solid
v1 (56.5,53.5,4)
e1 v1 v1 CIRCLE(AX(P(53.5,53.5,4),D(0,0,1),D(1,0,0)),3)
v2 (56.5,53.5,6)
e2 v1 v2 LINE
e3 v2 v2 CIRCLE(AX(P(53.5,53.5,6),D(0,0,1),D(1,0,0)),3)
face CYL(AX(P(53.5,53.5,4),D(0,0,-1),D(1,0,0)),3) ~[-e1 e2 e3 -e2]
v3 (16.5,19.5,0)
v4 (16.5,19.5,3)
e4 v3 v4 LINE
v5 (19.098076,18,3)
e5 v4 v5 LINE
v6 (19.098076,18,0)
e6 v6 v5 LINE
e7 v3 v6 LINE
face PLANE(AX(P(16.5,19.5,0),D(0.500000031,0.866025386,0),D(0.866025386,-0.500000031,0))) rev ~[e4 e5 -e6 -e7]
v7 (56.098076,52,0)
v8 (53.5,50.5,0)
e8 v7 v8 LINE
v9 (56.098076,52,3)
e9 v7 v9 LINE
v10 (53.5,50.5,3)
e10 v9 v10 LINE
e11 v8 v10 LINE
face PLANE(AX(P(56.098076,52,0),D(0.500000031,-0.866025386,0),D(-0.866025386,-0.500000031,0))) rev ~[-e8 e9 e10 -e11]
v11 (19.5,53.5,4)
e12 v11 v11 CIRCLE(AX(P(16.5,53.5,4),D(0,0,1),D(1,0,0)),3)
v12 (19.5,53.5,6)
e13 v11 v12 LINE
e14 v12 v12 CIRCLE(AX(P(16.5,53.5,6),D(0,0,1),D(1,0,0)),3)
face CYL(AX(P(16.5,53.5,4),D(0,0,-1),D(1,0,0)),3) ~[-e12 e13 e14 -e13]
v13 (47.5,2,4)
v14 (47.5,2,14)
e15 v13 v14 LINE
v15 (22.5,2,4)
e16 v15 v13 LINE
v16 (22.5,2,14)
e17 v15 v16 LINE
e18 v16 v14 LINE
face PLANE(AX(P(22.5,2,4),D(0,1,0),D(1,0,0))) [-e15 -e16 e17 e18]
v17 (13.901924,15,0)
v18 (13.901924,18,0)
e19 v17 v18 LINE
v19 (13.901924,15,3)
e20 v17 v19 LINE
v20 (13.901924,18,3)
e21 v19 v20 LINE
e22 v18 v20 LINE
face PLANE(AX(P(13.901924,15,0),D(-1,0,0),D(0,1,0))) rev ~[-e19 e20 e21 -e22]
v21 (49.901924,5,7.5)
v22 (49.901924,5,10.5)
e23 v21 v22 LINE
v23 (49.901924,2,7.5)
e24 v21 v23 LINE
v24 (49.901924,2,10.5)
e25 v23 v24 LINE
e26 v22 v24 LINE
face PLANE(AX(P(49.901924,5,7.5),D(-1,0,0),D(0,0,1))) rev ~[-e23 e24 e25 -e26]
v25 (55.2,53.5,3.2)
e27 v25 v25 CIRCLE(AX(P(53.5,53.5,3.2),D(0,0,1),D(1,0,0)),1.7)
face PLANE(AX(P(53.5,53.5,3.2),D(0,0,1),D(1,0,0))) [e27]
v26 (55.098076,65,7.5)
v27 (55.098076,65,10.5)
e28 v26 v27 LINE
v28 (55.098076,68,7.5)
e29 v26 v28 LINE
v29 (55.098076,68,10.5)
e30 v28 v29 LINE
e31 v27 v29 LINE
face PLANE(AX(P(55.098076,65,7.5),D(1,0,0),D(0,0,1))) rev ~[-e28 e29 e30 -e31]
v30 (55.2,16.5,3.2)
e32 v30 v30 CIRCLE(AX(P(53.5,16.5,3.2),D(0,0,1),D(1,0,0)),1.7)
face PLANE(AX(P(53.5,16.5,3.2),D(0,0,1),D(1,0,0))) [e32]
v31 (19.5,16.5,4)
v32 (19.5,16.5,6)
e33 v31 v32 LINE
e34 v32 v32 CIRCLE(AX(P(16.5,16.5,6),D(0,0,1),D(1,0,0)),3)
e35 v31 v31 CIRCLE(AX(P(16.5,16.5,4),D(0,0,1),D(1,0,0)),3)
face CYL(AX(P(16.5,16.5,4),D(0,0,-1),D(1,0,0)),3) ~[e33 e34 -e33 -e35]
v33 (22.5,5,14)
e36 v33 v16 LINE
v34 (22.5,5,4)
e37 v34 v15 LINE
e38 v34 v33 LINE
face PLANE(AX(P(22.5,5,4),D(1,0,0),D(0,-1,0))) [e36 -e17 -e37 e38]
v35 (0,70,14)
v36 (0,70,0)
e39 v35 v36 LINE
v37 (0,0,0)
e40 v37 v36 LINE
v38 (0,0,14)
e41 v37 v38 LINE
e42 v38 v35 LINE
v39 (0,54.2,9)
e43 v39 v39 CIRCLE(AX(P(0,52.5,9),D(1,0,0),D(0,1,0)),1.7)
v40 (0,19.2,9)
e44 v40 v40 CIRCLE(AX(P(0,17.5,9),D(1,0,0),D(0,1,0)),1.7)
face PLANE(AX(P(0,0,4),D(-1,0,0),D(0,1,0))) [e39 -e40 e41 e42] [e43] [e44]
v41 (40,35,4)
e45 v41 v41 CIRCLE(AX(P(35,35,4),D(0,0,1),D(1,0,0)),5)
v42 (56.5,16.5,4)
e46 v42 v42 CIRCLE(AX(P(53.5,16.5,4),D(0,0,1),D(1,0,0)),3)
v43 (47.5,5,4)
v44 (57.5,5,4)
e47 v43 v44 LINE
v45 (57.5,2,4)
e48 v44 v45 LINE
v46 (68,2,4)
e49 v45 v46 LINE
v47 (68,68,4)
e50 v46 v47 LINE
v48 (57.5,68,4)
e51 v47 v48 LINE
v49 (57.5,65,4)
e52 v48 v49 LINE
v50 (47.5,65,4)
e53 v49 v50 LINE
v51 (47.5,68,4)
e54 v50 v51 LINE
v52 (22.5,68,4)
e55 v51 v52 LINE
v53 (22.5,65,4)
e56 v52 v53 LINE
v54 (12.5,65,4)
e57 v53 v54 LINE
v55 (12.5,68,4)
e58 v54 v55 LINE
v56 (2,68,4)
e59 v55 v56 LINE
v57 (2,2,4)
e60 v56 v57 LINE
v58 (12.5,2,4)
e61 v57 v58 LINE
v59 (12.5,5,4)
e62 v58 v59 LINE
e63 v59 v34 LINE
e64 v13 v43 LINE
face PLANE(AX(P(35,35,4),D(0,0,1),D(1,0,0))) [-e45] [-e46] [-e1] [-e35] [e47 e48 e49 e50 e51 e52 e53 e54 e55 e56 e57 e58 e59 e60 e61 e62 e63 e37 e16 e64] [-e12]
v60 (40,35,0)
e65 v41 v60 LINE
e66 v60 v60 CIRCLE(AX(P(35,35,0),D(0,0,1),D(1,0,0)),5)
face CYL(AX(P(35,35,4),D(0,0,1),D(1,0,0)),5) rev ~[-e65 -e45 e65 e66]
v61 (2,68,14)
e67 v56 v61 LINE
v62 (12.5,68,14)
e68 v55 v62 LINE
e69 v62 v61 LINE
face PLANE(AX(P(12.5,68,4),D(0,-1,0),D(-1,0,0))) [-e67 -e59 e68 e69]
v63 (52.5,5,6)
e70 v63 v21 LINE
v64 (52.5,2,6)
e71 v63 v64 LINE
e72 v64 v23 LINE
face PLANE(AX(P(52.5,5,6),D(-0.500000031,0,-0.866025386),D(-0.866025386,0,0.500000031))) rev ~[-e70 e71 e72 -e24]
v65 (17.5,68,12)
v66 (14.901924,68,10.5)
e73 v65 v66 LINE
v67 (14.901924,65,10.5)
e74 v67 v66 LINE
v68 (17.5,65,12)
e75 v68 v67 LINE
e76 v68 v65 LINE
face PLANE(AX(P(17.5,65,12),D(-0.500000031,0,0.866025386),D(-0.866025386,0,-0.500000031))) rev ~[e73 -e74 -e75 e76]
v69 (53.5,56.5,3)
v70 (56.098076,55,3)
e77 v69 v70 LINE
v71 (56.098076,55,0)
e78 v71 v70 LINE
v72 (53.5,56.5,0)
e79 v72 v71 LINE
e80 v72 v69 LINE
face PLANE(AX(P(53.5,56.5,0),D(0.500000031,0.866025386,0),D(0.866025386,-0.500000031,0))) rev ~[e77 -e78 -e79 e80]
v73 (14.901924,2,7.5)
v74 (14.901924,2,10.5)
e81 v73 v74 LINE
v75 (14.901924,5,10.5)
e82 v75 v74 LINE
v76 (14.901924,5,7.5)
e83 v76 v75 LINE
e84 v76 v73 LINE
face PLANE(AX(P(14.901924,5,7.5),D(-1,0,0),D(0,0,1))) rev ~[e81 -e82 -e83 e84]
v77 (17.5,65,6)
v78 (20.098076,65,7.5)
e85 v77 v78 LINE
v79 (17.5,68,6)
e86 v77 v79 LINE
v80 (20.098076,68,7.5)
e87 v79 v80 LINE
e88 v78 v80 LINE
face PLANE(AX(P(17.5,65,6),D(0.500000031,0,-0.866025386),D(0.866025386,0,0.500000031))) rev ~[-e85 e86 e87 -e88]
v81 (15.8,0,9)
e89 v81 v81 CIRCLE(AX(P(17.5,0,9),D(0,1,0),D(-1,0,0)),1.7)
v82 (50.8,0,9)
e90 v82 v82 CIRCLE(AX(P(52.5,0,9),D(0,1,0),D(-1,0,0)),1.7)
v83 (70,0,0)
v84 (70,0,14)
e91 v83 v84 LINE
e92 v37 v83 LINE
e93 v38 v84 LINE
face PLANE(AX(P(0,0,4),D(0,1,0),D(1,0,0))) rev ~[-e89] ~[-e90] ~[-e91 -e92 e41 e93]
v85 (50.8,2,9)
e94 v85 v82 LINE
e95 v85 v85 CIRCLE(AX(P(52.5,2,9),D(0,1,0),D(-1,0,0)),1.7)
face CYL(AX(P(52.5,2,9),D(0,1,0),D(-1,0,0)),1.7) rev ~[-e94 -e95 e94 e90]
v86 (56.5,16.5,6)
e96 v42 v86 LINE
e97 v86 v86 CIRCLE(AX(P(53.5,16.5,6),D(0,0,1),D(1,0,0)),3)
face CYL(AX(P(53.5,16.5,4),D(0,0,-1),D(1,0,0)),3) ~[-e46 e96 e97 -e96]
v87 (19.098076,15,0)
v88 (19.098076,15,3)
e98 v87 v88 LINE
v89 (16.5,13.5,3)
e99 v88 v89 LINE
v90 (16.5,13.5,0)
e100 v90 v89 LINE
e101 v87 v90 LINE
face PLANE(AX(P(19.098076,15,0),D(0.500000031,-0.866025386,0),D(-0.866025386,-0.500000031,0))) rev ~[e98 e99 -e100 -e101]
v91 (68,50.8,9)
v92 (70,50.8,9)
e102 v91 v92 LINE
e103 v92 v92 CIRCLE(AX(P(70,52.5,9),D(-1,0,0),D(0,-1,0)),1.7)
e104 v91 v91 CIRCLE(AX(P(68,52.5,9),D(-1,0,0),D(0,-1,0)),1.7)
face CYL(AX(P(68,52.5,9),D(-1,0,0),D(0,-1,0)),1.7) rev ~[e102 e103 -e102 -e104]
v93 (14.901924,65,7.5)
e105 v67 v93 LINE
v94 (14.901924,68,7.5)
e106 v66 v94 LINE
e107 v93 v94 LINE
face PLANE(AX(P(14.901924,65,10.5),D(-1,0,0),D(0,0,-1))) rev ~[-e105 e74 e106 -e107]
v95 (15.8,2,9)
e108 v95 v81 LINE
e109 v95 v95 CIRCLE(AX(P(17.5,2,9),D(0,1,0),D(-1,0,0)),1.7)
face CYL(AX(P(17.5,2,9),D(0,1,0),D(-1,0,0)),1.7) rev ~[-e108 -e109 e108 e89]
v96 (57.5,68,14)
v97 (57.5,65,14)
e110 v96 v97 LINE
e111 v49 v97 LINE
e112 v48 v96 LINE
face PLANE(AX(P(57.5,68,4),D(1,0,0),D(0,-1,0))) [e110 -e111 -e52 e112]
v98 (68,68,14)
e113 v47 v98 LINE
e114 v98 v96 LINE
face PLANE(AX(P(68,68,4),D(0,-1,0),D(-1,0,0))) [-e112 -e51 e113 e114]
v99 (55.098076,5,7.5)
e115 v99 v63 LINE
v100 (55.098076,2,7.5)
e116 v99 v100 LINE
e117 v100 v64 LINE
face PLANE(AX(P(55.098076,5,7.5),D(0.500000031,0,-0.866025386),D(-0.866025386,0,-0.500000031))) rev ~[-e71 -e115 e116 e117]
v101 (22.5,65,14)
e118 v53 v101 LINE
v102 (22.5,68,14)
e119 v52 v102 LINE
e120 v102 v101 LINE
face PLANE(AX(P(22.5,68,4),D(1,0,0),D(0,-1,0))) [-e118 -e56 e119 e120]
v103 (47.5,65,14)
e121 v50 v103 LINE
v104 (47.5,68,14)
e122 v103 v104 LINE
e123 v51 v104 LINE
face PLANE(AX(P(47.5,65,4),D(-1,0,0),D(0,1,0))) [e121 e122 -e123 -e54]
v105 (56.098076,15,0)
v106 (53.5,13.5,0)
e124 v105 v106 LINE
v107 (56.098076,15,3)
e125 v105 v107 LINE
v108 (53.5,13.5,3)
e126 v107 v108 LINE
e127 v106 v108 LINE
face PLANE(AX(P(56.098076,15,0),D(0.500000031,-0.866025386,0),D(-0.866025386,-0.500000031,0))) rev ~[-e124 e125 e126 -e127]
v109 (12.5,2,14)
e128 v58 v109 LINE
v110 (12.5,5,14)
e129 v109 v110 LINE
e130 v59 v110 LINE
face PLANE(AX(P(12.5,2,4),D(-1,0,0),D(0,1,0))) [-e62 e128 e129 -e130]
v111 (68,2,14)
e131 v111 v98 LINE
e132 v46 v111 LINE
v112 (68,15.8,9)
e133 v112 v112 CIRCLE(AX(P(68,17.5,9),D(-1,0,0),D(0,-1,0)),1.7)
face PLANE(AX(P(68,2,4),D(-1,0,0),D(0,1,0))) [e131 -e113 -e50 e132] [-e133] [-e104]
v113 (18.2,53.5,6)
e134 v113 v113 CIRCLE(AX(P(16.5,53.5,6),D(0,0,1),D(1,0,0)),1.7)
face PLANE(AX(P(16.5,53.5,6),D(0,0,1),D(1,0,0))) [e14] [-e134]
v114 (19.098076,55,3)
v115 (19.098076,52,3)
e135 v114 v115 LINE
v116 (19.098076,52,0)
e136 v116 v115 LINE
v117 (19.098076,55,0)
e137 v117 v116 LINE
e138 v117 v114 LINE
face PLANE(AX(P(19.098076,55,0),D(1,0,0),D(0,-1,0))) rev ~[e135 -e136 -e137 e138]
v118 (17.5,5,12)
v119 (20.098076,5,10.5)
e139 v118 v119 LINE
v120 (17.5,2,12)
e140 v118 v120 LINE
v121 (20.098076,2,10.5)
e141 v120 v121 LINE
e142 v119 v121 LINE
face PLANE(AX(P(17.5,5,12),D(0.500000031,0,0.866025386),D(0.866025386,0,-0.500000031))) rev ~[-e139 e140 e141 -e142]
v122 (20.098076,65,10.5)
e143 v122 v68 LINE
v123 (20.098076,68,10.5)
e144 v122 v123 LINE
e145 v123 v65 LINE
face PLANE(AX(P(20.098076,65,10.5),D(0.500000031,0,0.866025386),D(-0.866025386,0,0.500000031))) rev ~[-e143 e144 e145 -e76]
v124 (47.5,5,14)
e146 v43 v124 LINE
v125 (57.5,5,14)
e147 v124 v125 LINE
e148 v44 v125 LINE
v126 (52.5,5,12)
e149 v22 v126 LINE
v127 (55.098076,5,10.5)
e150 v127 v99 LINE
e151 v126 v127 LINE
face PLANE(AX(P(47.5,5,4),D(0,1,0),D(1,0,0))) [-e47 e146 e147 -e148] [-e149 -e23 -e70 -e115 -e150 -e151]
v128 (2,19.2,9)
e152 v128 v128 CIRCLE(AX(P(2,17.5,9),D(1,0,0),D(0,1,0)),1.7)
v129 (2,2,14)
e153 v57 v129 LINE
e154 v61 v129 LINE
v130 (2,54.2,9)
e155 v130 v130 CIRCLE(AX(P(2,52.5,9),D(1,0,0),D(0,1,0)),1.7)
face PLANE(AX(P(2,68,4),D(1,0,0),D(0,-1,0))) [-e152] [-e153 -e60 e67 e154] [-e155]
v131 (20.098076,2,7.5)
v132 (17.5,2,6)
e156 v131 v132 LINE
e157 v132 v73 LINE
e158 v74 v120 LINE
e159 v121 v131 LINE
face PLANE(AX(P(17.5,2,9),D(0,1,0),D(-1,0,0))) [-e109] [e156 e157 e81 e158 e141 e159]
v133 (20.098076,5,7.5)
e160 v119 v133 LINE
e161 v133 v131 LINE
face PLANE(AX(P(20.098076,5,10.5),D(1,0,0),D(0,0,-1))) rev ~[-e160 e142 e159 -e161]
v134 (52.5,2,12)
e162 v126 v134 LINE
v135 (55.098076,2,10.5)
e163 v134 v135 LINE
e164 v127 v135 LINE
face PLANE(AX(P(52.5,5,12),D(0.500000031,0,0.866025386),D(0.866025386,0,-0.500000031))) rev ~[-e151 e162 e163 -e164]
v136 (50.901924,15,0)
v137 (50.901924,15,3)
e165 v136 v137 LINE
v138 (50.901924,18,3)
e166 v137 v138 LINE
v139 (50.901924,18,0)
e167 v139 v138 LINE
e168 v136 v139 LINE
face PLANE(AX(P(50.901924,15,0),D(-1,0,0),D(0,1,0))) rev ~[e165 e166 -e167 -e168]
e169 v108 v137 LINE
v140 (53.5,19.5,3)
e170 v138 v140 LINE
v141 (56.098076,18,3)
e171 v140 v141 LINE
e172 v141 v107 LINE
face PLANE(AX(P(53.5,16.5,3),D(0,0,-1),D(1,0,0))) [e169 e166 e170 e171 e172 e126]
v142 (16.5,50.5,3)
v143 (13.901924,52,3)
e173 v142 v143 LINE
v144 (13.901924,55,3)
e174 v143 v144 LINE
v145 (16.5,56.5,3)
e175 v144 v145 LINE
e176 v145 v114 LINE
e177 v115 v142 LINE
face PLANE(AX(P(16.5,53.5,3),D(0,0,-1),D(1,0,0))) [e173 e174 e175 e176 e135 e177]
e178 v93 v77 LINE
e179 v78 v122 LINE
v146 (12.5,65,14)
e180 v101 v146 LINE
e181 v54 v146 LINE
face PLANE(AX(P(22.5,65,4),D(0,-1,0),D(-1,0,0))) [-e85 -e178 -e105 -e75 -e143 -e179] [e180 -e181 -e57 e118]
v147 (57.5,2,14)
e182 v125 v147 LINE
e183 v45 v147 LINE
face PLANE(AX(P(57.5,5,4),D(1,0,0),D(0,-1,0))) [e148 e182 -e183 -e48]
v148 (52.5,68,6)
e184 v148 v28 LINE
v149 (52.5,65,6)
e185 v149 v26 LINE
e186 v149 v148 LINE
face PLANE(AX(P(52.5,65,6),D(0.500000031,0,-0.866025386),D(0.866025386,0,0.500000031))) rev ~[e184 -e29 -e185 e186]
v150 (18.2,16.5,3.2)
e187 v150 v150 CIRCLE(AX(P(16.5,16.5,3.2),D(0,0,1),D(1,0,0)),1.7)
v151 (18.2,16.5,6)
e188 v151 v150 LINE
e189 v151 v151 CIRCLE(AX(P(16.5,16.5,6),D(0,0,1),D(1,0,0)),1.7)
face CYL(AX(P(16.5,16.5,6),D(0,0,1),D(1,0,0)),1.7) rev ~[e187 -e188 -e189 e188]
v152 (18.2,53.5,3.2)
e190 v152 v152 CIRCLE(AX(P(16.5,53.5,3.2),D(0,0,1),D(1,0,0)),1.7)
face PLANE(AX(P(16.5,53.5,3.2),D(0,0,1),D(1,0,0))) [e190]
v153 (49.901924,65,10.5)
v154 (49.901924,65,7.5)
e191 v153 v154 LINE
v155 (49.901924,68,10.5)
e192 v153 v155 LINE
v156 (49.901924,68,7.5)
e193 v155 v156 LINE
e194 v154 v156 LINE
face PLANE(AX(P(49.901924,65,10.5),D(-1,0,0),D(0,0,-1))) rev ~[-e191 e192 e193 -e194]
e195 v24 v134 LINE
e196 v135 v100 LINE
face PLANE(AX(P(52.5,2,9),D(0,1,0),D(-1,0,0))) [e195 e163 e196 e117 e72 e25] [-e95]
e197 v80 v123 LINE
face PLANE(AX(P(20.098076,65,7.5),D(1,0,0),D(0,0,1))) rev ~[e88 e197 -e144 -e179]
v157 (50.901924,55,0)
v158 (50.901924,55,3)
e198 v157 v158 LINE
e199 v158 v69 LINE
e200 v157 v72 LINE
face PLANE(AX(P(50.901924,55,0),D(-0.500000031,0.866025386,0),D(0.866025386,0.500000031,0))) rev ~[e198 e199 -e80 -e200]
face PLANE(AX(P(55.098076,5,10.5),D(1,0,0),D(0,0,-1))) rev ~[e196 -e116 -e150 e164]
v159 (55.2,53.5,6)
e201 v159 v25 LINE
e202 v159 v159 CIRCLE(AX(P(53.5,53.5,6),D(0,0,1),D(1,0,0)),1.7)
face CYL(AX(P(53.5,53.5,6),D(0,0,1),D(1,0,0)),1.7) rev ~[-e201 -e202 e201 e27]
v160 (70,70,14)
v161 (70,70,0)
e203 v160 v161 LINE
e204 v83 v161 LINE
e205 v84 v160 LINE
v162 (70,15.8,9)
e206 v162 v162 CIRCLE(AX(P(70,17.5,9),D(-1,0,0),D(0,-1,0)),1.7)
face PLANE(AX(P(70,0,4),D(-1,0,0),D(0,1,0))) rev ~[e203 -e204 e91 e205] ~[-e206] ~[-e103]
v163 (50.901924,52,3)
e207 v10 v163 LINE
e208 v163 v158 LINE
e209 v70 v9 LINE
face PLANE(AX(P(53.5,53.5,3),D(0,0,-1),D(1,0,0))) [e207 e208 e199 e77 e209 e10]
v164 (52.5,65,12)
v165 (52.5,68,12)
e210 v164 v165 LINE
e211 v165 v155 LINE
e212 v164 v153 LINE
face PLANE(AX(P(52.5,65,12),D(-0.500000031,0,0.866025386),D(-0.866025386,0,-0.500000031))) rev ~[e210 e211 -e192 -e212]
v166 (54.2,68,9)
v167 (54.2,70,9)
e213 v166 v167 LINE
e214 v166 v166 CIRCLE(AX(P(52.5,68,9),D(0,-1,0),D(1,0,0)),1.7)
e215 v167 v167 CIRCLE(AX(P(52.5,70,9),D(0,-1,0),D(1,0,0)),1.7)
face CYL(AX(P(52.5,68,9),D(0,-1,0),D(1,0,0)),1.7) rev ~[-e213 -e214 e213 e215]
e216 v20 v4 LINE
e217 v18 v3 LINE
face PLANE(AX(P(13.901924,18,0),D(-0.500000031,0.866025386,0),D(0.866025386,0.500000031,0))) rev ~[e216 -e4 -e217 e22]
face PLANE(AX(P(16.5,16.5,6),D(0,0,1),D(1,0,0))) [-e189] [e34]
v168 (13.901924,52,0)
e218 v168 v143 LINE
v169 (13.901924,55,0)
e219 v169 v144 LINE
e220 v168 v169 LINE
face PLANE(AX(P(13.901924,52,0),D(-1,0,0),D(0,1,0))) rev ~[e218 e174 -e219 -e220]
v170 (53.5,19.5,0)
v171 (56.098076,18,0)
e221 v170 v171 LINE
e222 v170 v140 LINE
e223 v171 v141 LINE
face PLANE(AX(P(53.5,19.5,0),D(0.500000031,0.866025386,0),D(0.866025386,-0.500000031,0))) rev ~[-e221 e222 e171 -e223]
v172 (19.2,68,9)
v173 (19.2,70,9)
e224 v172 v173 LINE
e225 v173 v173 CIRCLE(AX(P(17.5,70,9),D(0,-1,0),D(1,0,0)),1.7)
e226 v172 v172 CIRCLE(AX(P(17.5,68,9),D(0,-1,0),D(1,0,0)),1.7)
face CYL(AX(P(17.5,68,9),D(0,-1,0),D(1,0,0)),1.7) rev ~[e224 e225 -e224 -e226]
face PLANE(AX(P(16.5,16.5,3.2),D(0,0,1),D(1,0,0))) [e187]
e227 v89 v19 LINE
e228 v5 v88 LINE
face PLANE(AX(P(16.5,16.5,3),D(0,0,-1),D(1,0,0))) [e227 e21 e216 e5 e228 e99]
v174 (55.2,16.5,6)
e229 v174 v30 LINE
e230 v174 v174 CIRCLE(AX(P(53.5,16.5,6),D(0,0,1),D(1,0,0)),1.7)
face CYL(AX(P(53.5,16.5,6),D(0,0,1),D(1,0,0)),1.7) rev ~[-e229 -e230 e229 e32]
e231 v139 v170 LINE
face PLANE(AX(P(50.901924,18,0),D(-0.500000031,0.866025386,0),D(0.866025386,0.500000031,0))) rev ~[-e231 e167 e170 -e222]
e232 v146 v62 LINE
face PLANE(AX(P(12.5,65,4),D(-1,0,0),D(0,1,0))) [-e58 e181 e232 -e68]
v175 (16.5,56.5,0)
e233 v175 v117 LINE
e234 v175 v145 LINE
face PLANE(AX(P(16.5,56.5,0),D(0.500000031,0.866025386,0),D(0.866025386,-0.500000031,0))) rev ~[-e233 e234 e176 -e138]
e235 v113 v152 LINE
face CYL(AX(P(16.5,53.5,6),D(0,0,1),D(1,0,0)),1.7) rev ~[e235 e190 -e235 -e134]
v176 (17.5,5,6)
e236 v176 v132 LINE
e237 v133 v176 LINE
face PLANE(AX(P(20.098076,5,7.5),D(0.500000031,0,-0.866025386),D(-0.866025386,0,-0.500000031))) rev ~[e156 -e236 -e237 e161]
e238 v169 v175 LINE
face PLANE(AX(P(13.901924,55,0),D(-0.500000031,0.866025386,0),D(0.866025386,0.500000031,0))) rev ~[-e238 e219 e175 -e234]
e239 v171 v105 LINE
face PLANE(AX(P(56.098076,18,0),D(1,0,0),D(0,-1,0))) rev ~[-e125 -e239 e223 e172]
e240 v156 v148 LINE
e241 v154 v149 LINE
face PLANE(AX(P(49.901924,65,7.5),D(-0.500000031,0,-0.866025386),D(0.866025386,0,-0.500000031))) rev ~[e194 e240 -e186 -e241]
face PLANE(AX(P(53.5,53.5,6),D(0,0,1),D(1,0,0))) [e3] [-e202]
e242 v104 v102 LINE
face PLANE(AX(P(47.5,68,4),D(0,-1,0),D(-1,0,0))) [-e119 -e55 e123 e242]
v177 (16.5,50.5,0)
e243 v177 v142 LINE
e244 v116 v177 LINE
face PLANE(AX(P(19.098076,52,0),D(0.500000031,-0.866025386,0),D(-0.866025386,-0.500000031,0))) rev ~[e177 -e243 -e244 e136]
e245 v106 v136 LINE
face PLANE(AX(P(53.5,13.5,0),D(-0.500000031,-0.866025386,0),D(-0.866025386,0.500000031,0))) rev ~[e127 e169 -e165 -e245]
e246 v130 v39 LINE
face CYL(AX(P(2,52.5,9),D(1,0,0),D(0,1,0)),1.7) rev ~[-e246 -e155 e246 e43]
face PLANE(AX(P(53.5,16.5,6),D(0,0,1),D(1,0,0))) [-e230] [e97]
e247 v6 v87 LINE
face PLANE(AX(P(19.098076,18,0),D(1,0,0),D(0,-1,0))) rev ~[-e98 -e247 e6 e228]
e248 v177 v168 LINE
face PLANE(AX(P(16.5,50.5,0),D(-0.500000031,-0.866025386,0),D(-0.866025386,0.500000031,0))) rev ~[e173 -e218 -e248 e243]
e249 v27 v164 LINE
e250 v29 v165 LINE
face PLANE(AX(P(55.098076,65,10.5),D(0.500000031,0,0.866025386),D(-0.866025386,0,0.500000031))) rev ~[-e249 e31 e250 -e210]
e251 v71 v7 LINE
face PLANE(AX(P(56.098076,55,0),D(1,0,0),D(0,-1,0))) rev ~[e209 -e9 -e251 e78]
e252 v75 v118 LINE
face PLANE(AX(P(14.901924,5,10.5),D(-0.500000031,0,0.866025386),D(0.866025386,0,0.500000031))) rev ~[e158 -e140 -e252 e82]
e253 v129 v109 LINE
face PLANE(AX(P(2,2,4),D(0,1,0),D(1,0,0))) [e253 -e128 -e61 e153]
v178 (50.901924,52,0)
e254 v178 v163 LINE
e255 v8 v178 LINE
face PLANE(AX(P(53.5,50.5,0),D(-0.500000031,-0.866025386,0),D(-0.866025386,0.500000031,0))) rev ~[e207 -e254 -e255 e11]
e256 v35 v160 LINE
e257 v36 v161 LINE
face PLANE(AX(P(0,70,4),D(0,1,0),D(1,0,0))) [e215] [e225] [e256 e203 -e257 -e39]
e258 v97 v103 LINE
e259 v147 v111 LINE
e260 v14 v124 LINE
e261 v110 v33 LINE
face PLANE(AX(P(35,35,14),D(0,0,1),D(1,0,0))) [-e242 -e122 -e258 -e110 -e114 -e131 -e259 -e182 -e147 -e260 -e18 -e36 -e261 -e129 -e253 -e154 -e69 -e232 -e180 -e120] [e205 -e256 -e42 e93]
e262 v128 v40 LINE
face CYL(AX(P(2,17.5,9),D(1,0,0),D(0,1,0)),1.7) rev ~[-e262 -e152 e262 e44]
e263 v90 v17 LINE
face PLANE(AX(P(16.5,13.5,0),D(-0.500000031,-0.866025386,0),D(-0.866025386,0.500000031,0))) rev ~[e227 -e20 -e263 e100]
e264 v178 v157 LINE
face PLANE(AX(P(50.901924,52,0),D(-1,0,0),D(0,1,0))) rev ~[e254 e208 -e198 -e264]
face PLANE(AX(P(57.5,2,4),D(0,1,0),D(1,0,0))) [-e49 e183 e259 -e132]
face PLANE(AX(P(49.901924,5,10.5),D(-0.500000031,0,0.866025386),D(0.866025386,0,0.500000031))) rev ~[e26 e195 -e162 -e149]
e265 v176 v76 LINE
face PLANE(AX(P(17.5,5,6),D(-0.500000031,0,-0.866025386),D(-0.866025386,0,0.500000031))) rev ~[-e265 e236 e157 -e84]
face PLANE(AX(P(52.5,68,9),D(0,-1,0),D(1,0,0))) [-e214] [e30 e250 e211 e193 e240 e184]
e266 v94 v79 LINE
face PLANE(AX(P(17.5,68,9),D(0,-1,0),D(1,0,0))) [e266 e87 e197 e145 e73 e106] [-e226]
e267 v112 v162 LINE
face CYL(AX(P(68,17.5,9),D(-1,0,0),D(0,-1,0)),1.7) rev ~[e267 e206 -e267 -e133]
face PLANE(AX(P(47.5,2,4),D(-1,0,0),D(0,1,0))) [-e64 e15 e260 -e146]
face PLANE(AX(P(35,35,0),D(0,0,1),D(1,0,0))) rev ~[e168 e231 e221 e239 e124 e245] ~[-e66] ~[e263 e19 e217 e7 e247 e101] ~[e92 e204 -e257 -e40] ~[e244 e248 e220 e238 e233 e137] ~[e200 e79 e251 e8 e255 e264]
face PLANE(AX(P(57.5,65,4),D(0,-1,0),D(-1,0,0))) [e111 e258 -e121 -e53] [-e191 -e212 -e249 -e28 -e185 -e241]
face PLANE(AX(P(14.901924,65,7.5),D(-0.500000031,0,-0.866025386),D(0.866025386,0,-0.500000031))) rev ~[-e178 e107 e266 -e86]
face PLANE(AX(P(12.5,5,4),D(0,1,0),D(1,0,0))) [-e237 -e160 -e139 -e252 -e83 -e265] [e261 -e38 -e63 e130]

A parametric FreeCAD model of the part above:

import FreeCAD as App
import Part
import Sketcher
from FreeCAD import Vector
Q = App.Units.Quantity

doc = App.newDocument("Part")
body = doc.addObject("PartDesign::Body", "Body")

sketch1 = body.newObject("Sketcher::SketchObject", "Sketch")
sketch1.AttachmentSupport = (doc.getObject("XY_Plane"), [""])
sketch1.MapMode = "FlatFace"
sketch1.addGeometry([
    Part.LineSegment(Vector(0, 70, 0), Vector(0, 0, 0)),
    Part.LineSegment(Vector(0, 0, 0), Vector(70, 0, 0)),
    Part.LineSegment(Vector(70, 0, 0), Vector(70, 70, 0)),
    Part.LineSegment(Vector(70, 70, 0), Vector(0, 70, 0)),
], False)
sketch1.addConstraint([
    Sketcher.Constraint("Coincident", 0, 2, 1, 1),
    Sketcher.Constraint("Coincident", 1, 2, 2, 1),
    Sketcher.Constraint("Coincident", 2, 2, 3, 1),
    Sketcher.Constraint("Coincident", 3, 2, 0, 1),
    Sketcher.Constraint("Vertical", 0),
    Sketcher.Constraint("Horizontal", 1),
    Sketcher.Constraint("Vertical", 2),
    Sketcher.Constraint("Horizontal", 3),
    Sketcher.Constraint("Coincident", 0, 2, -1, 1),
    Sketcher.Constraint("Equal", 3, 0),
    Sketcher.Constraint("DistanceX", 1, 1, 1, 2, Q("70 mm")),
])
pad1 = body.newObject("PartDesign::Pad", "Pad")
pad1.Profile = sketch1
pad1.Length = 4

sketch2 = body.newObject("Sketcher::SketchObject", "Sketch001")
sketch2.AttachmentSupport = (doc.getObject("XY_Plane"), [""])
sketch2.MapMode = "FlatFace"
sketch2.AttachmentOffset = App.Placement(Vector(0, 0, 4), App.Rotation())
sketch2.addGeometry([
    Part.LineSegment(Vector(0, 70, 0), Vector(0, 0, 0)),
    Part.LineSegment(Vector(0, 0, 0), Vector(70, 0, 0)),
    Part.LineSegment(Vector(70, 0, 0), Vector(70, 70, 0)),
    Part.LineSegment(Vector(70, 70, 0), Vector(0, 70, 0)),
    Part.LineSegment(Vector(2, 2, 0), Vector(2, 68, 0)),
    Part.LineSegment(Vector(2, 68, 0), Vector(12.5, 68, 0)),
    Part.LineSegment(Vector(12.5, 68, 0), Vector(12.5, 65, 0)),
    Part.LineSegment(Vector(12.5, 65, 0), Vector(22.5, 65, 0)),
    Part.LineSegment(Vector(22.5, 65, 0), Vector(22.5, 68, 0)),
    Part.LineSegment(Vector(22.5, 68, 0), Vector(47.5, 68, 0)),
    Part.LineSegment(Vector(47.5, 68, 0), Vector(47.5, 65, 0)),
    Part.LineSegment(Vector(47.5, 65, 0), Vector(57.5, 65, 0)),
    Part.LineSegment(Vector(57.5, 65, 0), Vector(57.5, 68, 0)),
    Part.LineSegment(Vector(57.5, 68, 0), Vector(68, 68, 0)),
    Part.LineSegment(Vector(68, 68, 0), Vector(68, 2, 0)),
    Part.LineSegment(Vector(68, 2, 0), Vector(57.5, 2, 0)),
    Part.LineSegment(Vector(57.5, 2, 0), Vector(57.5, 5, 0)),
    Part.LineSegment(Vector(57.5, 5, 0), Vector(47.5, 5, 0)),
    Part.LineSegment(Vector(47.5, 5, 0), Vector(47.5, 2, 0)),
    Part.LineSegment(Vector(47.5, 2, 0), Vector(22.5, 2, 0)),
    Part.LineSegment(Vector(22.5, 2, 0), Vector(22.5, 5, 0)),
    Part.LineSegment(Vector(22.5, 5, 0), Vector(12.5, 5, 0)),
    Part.LineSegment(Vector(12.5, 5, 0), Vector(12.5, 2, 0)),
    Part.LineSegment(Vector(12.5, 2, 0), Vector(2, 2, 0)),
], False)
sketch2.addConstraint([
    Sketcher.Constraint("Coincident", 0, 2, 1, 1),
    Sketcher.Constraint("Coincident", 1, 2, 2, 1),
    Sketcher.Constraint("Coincident", 2, 2, 3, 1),
    Sketcher.Constraint("Coincident", 3, 2, 0, 1),
    Sketcher.Constraint("Coincident", 4, 2, 5, 1),
    Sketcher.Constraint("Coincident", 5, 2, 6, 1),
    Sketcher.Constraint("Coincident", 6, 2, 7, 1),
    Sketcher.Constraint("Coincident", 7, 2, 8, 1),
    Sketcher.Constraint("Coincident", 8, 2, 9, 1),
    Sketcher.Constraint("Coincident", 9, 2, 10, 1),
    Sketcher.Constraint("Coincident", 10, 2, 11, 1),
    Sketcher.Constraint("Coincident", 11, 2, 12, 1),
    Sketcher.Constraint("Coincident", 12, 2, 13, 1),
    Sketcher.Constraint("Coincident", 13, 2, 14, 1),
    Sketcher.Constraint("Coincident", 14, 2, 15, 1),
    Sketcher.Constraint("Coincident", 15, 2, 16, 1),
    Sketcher.Constraint("Coincident", 16, 2, 17, 1),
    Sketcher.Constraint("Coincident", 17, 2, 18, 1),
    Sketcher.Constraint("Coincident", 18, 2, 19, 1),
    Sketcher.Constraint("Coincident", 19, 2, 20, 1),
    Sketcher.Constraint("Coincident", 20, 2, 21, 1),
    Sketcher.Constraint("Coincident", 21, 2, 22, 1),
    Sketcher.Constraint("Coincident", 22, 2, 23, 1),
    Sketcher.Constraint("Coincident", 23, 2, 4, 1),
    Sketcher.Constraint("Vertical", 0),
    Sketcher.Constraint("Horizontal", 1),
    Sketcher.Constraint("Vertical", 2),
    Sketcher.Constraint("Horizontal", 3),
    Sketcher.Constraint("Vertical", 4),
    Sketcher.Constraint("Horizontal", 5),
    Sketcher.Constraint("Vertical", 6),
    Sketcher.Constraint("Horizontal", 7),
    Sketcher.Constraint("Vertical", 8),
    Sketcher.Constraint("Horizontal", 9),
    Sketcher.Constraint("Vertical", 10),
    Sketcher.Constraint("Horizontal", 11),
    Sketcher.Constraint("Vertical", 12),
    Sketcher.Constraint("Horizontal", 13),
    Sketcher.Constraint("Vertical", 14),
    Sketcher.Constraint("Horizontal", 15),
    Sketcher.Constraint("Vertical", 16),
    Sketcher.Constraint("Horizontal", 17),
    Sketcher.Constraint("Vertical", 18),
    Sketcher.Constraint("Horizontal", 19),
    Sketcher.Constraint("Vertical", 20),
    Sketcher.Constraint("Horizontal", 21),
    Sketcher.Constraint("Vertical", 22),
    Sketcher.Constraint("Horizontal", 23),
    Sketcher.Constraint("Coincident", 0, 2, -1, 1),
    Sketcher.Constraint("Horizontal", 5, 2, 8, 2),
    Sketcher.Constraint("Horizontal", 7, 2, 10, 2),
    Sketcher.Constraint("Horizontal", 9, 2, 12, 2),
    Sketcher.Constraint("Horizontal", 15, 2, 18, 2),
    Sketcher.Constraint("Horizontal", 17, 2, 20, 2),
    Sketcher.Constraint("Horizontal", 19, 2, 22, 2),
    Sketcher.Constraint("Vertical", 12, 2, 15, 2),
    Sketcher.Constraint("Vertical", 10, 2, 17, 2),
    Sketcher.Constraint("Vertical", 8, 2, 19, 2),
    Sketcher.Constraint("Vertical", 6, 2, 21, 2),
    Sketcher.Constraint("Equal", 7, 11),
    Sketcher.Constraint("Equal", 5, 13),
    Sketcher.Constraint("Equal", 3, 0),
    Sketcher.Constraint("Equal", 12, 16),
    Sketcher.Constraint("DistanceX", 1, 1, 1, 2, Q("70 mm")),
    Sketcher.Constraint("DistanceX", 7, 1, 7, 2, Q("10 mm")),
    Sketcher.Constraint("DistanceX", 9, 1, 9, 2, Q("25 mm")),
    Sketcher.Constraint("DistanceY", 4, 1, 4, 2, Q("66 mm")),
    Sketcher.Constraint("DistanceY", 6, 2, 6, 1, Q("3 mm")),
    Sketcher.Constraint("DistanceX", 5, 1, 5, 2, Q("10.5 mm")),
    Sketcher.Constraint("DistanceX", -1, 1, 4, 2, Q("2 mm")),
    Sketcher.Constraint("DistanceY", -1, 1, 4, 2, Q("68 mm")),
])
pad2 = body.newObject("PartDesign::Pad", "Pad001")
pad2.Profile = sketch2
pad2.Length = 10

sketch3 = body.newObject("Sketcher::SketchObject", "Sketch002")
sketch3.AttachmentSupport = (doc.getObject("YZ_Plane"), [""])
sketch3.MapMode = "FlatFace"
sketch3.AttachmentOffset = App.Placement(Vector(0, 0, 2), App.Rotation())
sketch3.addGeometry([
    Part.Circle(Vector(17.5, 9, 0), Vector(0, 0, 1), 1.7),
    Part.Circle(Vector(52.5, 9, 0), Vector(0, 0, 1), 1.7),
], False)
sketch3.addConstraint([
    Sketcher.Constraint("Equal", 0, 1),
    Sketcher.Constraint("Horizontal", 0, 3, 1, 3),
    Sketcher.Constraint("Diameter", 0, Q("3.4 mm")),
    Sketcher.Constraint("DistanceY", -1, 1, 0, 3, Q("9 mm")),
    Sketcher.Constraint("DistanceX", 0, 3, 1, 3, Q("35 mm")),
    Sketcher.Constraint("DistanceX", -1, 1, 0, 3, Q("17.5 mm")),
])
pocket1 = body.newObject("PartDesign::Pocket", "Pocket")
pocket1.Profile = sketch3
pocket1.Length = 2

sketch4 = body.newObject("Sketcher::SketchObject", "Sketch003")
sketch4.AttachmentSupport = (doc.getObject("YZ_Plane"), [""])
sketch4.MapMode = "FlatFace"
sketch4.AttachmentOffset = App.Placement(Vector(0, 0, 68), App.Rotation())
sketch4.addGeometry([
    Part.Circle(Vector(52.5, 9, 0), Vector(0, 0, 1), 1.7),
    Part.Circle(Vector(17.5, 9, 0), Vector(0, 0, 1), 1.7),
], False)
sketch4.addConstraint([
    Sketcher.Constraint("Equal", 0, 1),
    Sketcher.Constraint("Horizontal", 0, 3, 1, 3),
    Sketcher.Constraint("Diameter", 0, Q("3.4 mm")),
    Sketcher.Constraint("DistanceY", -1, 1, 0, 3, Q("9 mm")),
    Sketcher.Constraint("DistanceX", 1, 3, 0, 3, Q("35 mm")),
    Sketcher.Constraint("DistanceX", -1, 1, 0, 3, Q("52.5 mm")),
])
pocket2 = body.newObject("PartDesign::Pocket", "Pocket001")
pocket2.Profile = sketch4
pocket2.Length = 2
pocket2.Reversed = True

sketch5 = body.newObject("Sketcher::SketchObject", "Sketch004")
sketch5.AttachmentSupport = (doc.getObject("XZ_Plane"), [""])
sketch5.MapMode = "FlatFace"
sketch5.AttachmentOffset = App.Placement(Vector(0, 0, -5), App.Rotation())
sketch5.addGeometry([
    Part.LineSegment(Vector(49.9, 10.5, 0), Vector(52.5, 12, 0)),
    Part.LineSegment(Vector(52.5, 12, 0), Vector(55.1, 10.5, 0)),
    Part.LineSegment(Vector(55.1, 10.5, 0), Vector(55.1, 7.5, 0)),
    Part.LineSegment(Vector(55.1, 7.5, 0), Vector(52.5, 6, 0)),
    Part.LineSegment(Vector(52.5, 6, 0), Vector(49.9, 7.5, 0)),
    Part.LineSegment(Vector(49.9, 7.5, 0), Vector(49.9, 10.5, 0)),
    Part.LineSegment(Vector(14.9, 10.5, 0), Vector(17.5, 12, 0)),
    Part.LineSegment(Vector(17.5, 12, 0), Vector(20.1, 10.5, 0)),
    Part.LineSegment(Vector(20.1, 10.5, 0), Vector(20.1, 7.5, 0)),
    Part.LineSegment(Vector(20.1, 7.5, 0), Vector(17.5, 6, 0)),
    Part.LineSegment(Vector(17.5, 6, 0), Vector(14.9, 7.5, 0)),
    Part.LineSegment(Vector(14.9, 7.5, 0), Vector(14.9, 10.5, 0)),
], False)
sketch5.addConstraint([
    Sketcher.Constraint("Coincident", 0, 2, 1, 1),
    Sketcher.Constraint("Coincident", 1, 2, 2, 1),
    Sketcher.Constraint("Coincident", 2, 2, 3, 1),
    Sketcher.Constraint("Coincident", 3, 2, 4, 1),
    Sketcher.Constraint("Coincident", 4, 2, 5, 1),
    Sketcher.Constraint("Coincident", 5, 2, 0, 1),
    Sketcher.Constraint("Coincident", 6, 2, 7, 1),
    Sketcher.Constraint("Coincident", 7, 2, 8, 1),
    Sketcher.Constraint("Coincident", 8, 2, 9, 1),
    Sketcher.Constraint("Coincident", 9, 2, 10, 1),
    Sketcher.Constraint("Coincident", 10, 2, 11, 1),
    Sketcher.Constraint("Coincident", 11, 2, 6, 1),
    Sketcher.Constraint("Vertical", 2),
    Sketcher.Constraint("Vertical", 5),
    Sketcher.Constraint("Vertical", 8),
    Sketcher.Constraint("Vertical", 11),
    Sketcher.Constraint("Parallel", 0, 3),
    Sketcher.Constraint("Parallel", 1, 4),
    Sketcher.Constraint("Parallel", 3, 6),
    Sketcher.Constraint("Parallel", 4, 7),
    Sketcher.Constraint("Parallel", 6, 9),
    Sketcher.Constraint("Parallel", 7, 10),
    Sketcher.Constraint("Horizontal", 2, 2, 4, 2),
    Sketcher.Constraint("Horizontal", 1, 2, 5, 2),
    Sketcher.Constraint("Horizontal", 0, 2, 6, 2),
    Sketcher.Constraint("Horizontal", 5, 2, 7, 2),
    Sketcher.Constraint("Horizontal", 4, 2, 8, 2),
    Sketcher.Constraint("Horizontal", 3, 2, 9, 2),
    Sketcher.Constraint("Horizontal", 8, 2, 10, 2),
    Sketcher.Constraint("Vertical", 0, 2, 3, 2),
    Sketcher.Constraint("DistanceY", 2, 2, 2, 1, Q("3 mm")),
    Sketcher.Constraint("Angle", 0, Q("30.000002 deg")),
    Sketcher.Constraint("Distance", 0, Q("3 mm")),
    Sketcher.Constraint("DistanceY", -1, 1, 0, 2, Q("12 mm")),
    Sketcher.Constraint("DistanceX", 6, 2, 0, 2, Q("35 mm")),
    Sketcher.Constraint("DistanceX", -1, 1, 0, 2, Q("52.5 mm")),
])
pocket3 = body.newObject("PartDesign::Pocket", "Pocket002")
pocket3.Profile = sketch5
pocket3.Length = 3
pocket3.Reversed = True

sketch6 = body.newObject("Sketcher::SketchObject", "Sketch005")
sketch6.AttachmentSupport = (doc.getObject("XZ_Plane"), [""])
sketch6.MapMode = "FlatFace"
sketch6.AttachmentOffset = App.Placement(Vector(0, 0, -2), App.Rotation())
sketch6.addGeometry([
    Part.Circle(Vector(52.5, 9, 0), Vector(0, 0, 1), 1.7),
    Part.Circle(Vector(17.5, 9, 0), Vector(0, 0, 1), 1.7),
], False)
sketch6.addConstraint([
    Sketcher.Constraint("Equal", 0, 1),
    Sketcher.Constraint("Horizontal", 0, 3, 1, 3),
    Sketcher.Constraint("Diameter", 0, Q("3.4 mm")),
    Sketcher.Constraint("DistanceY", -1, 1, 0, 3, Q("9 mm")),
    Sketcher.Constraint("DistanceX", 1, 3, 0, 3, Q("35 mm")),
    Sketcher.Constraint("DistanceX", -1, 1, 0, 3, Q("52.5 mm")),
])
pocket4 = body.newObject("PartDesign::Pocket", "Pocket003")
pocket4.Profile = sketch6
pocket4.Length = 2
pocket4.Reversed = True

sketch7 = body.newObject("Sketcher::SketchObject", "Sketch006")
sketch7.AttachmentSupport = (doc.getObject("XZ_Plane"), [""])
sketch7.MapMode = "FlatFace"
sketch7.AttachmentOffset = App.Placement(Vector(0, 0, -65), App.Rotation())
sketch7.addGeometry([
    Part.LineSegment(Vector(20.1, 10.5, 0), Vector(17.5, 12, 0)),
    Part.LineSegment(Vector(17.5, 12, 0), Vector(14.9, 10.5, 0)),
    Part.LineSegment(Vector(14.9, 10.5, 0), Vector(14.9, 7.5, 0)),
    Part.LineSegment(Vector(14.9, 7.5, 0), Vector(17.5, 6, 0)),
    Part.LineSegment(Vector(17.5, 6, 0), Vector(20.1, 7.5, 0)),
    Part.LineSegment(Vector(20.1, 7.5, 0), Vector(20.1, 10.5, 0)),
    Part.LineSegment(Vector(55.1, 10.5, 0), Vector(52.5, 12, 0)),
    Part.LineSegment(Vector(52.5, 12, 0), Vector(49.9, 10.5, 0)),
    Part.LineSegment(Vector(49.9, 10.5, 0), Vector(49.9, 7.5, 0)),
    Part.LineSegment(Vector(49.9, 7.5, 0), Vector(52.5, 6, 0)),
    Part.LineSegment(Vector(52.5, 6, 0), Vector(55.1, 7.5, 0)),
    Part.LineSegment(Vector(55.1, 7.5, 0), Vector(55.1, 10.5, 0)),
], False)
sketch7.addConstraint([
    Sketcher.Constraint("Coincident", 0, 2, 1, 1),
    Sketcher.Constraint("Coincident", 1, 2, 2, 1),
    Sketcher.Constraint("Coincident", 2, 2, 3, 1),
    Sketcher.Constraint("Coincident", 3, 2, 4, 1),
    Sketcher.Constraint("Coincident", 4, 2, 5, 1),
    Sketcher.Constraint("Coincident", 5, 2, 0, 1),
    Sketcher.Constraint("Coincident", 6, 2, 7, 1),
    Sketcher.Constraint("Coincident", 7, 2, 8, 1),
    Sketcher.Constraint("Coincident", 8, 2, 9, 1),
    Sketcher.Constraint("Coincident", 9, 2, 10, 1),
    Sketcher.Constraint("Coincident", 10, 2, 11, 1),
    Sketcher.Constraint("Coincident", 11, 2, 6, 1),
    Sketcher.Constraint("Vertical", 2),
    Sketcher.Constraint("Vertical", 5),
    Sketcher.Constraint("Vertical", 8),
    Sketcher.Constraint("Vertical", 11),
    Sketcher.Constraint("Parallel", 0, 3),
    Sketcher.Constraint("Parallel", 1, 4),
    Sketcher.Constraint("Parallel", 3, 6),
    Sketcher.Constraint("Parallel", 4, 7),
    Sketcher.Constraint("Parallel", 6, 9),
    Sketcher.Constraint("Parallel", 7, 10),
    Sketcher.Constraint("Horizontal", 2, 2, 4, 2),
    Sketcher.Constraint("Horizontal", 1, 2, 5, 2),
    Sketcher.Constraint("Horizontal", 0, 2, 6, 2),
    Sketcher.Constraint("Horizontal", 5, 2, 7, 2),
    Sketcher.Constraint("Horizontal", 4, 2, 8, 2),
    Sketcher.Constraint("Horizontal", 3, 2, 9, 2),
    Sketcher.Constraint("Horizontal", 8, 2, 10, 2),
    Sketcher.Constraint("Vertical", 0, 2, 3, 2),
    Sketcher.Constraint("DistanceY", 2, 2, 2, 1, Q("3 mm")),
    Sketcher.Constraint("Angle", 0, Q("149.999998 deg")),
    Sketcher.Constraint("Distance", 0, Q("3 mm")),
    Sketcher.Constraint("DistanceY", -1, 1, 0, 2, Q("12 mm")),
    Sketcher.Constraint("DistanceX", 0, 2, 6, 2, Q("35 mm")),
    Sketcher.Constraint("DistanceX", -1, 1, 0, 2, Q("17.5 mm")),
])
pocket5 = body.newObject("PartDesign::Pocket", "Pocket004")
pocket5.Profile = sketch7
pocket5.Length = 3

sketch8 = body.newObject("Sketcher::SketchObject", "Sketch007")
sketch8.AttachmentSupport = (doc.getObject("XZ_Plane"), [""])
sketch8.MapMode = "FlatFace"
sketch8.AttachmentOffset = App.Placement(Vector(0, 0, -68), App.Rotation())
sketch8.addGeometry([
    Part.Circle(Vector(17.5, 9, 0), Vector(0, 0, 1), 1.7),
    Part.Circle(Vector(52.5, 9, 0), Vector(0, 0, 1), 1.7),
], False)
sketch8.addConstraint([
    Sketcher.Constraint("Equal", 0, 1),
    Sketcher.Constraint("Horizontal", 0, 3, 1, 3),
    Sketcher.Constraint("Diameter", 0, Q("3.4 mm")),
    Sketcher.Constraint("DistanceY", -1, 1, 0, 3, Q("9 mm")),
    Sketcher.Constraint("DistanceX", 0, 3, 1, 3, Q("35 mm")),
    Sketcher.Constraint("DistanceX", -1, 1, 0, 3, Q("17.5 mm")),
])
pocket6 = body.newObject("PartDesign::Pocket", "Pocket005")
pocket6.Profile = sketch8
pocket6.Length = 2

sketch9 = body.newObject("Sketcher::SketchObject", "Sketch008")
sketch9.AttachmentSupport = (doc.getObject("XY_Plane"), [""])
sketch9.MapMode = "FlatFace"
sketch9.addGeometry([
    Part.LineSegment(Vector(19.1, 15, 0), Vector(16.5, 13.5, 0)),
    Part.LineSegment(Vector(16.5, 13.5, 0), Vector(13.9, 15, 0)),
    Part.LineSegment(Vector(13.9, 15, 0), Vector(13.9, 18, 0)),
    Part.LineSegment(Vector(13.9, 18, 0), Vector(16.5, 19.5, 0)),
    Part.LineSegment(Vector(16.5, 19.5, 0), Vector(19.1, 18, 0)),
    Part.LineSegment(Vector(19.1, 18, 0), Vector(19.1, 15, 0)),
    Part.LineSegment(Vector(56.1, 15, 0), Vector(53.5, 13.5, 0)),
    Part.LineSegment(Vector(53.5, 13.5, 0), Vector(50.9, 15, 0)),
    Part.LineSegment(Vector(50.9, 15, 0), Vector(50.9, 18, 0)),
    Part.LineSegment(Vector(50.9, 18, 0), Vector(53.5, 19.5, 0)),
    Part.LineSegment(Vector(53.5, 19.5, 0), Vector(56.1, 18, 0)),
    Part.LineSegment(Vector(56.1, 18, 0), Vector(56.1, 15, 0)),
    Part.LineSegment(Vector(56.1, 55, 0), Vector(56.1, 52, 0)),
    Part.LineSegment(Vector(56.1, 52, 0), Vector(53.5, 50.5, 0)),
    Part.LineSegment(Vector(53.5, 50.5, 0), Vector(50.9, 52, 0)),
    Part.LineSegment(Vector(50.9, 52, 0), Vector(50.9, 55, 0)),
    Part.LineSegment(Vector(50.9, 55, 0), Vector(53.5, 56.5, 0)),
    Part.LineSegment(Vector(53.5, 56.5, 0), Vector(56.1, 55, 0)),
    Part.LineSegment(Vector(19.1, 52, 0), Vector(16.5, 50.5, 0)),
    Part.LineSegment(Vector(16.5, 50.5, 0), Vector(13.9, 52, 0)),
    Part.LineSegment(Vector(13.9, 52, 0), Vector(13.9, 55, 0)),
    Part.LineSegment(Vector(13.9, 55, 0), Vector(16.5, 56.5, 0)),
    Part.LineSegment(Vector(16.5, 56.5, 0), Vector(19.1, 55, 0)),
    Part.LineSegment(Vector(19.1, 55, 0), Vector(19.1, 52, 0)),
], False)
sketch9.addConstraint([
    Sketcher.Constraint("Coincident", 0, 2, 1, 1),
    Sketcher.Constraint("Coincident", 1, 2, 2, 1),
    Sketcher.Constraint("Coincident", 2, 2, 3, 1),
    Sketcher.Constraint("Coincident", 3, 2, 4, 1),
    Sketcher.Constraint("Coincident", 4, 2, 5, 1),
    Sketcher.Constraint("Coincident", 5, 2, 0, 1),
    Sketcher.Constraint("Coincident", 6, 2, 7, 1),
    Sketcher.Constraint("Coincident", 7, 2, 8, 1),
    Sketcher.Constraint("Coincident", 8, 2, 9, 1),
    Sketcher.Constraint("Coincident", 9, 2, 10, 1),
    Sketcher.Constraint("Coincident", 10, 2, 11, 1),
    Sketcher.Constraint("Coincident", 11, 2, 6, 1),
    Sketcher.Constraint("Coincident", 12, 2, 13, 1),
    Sketcher.Constraint("Coincident", 13, 2, 14, 1),
    Sketcher.Constraint("Coincident", 14, 2, 15, 1),
    Sketcher.Constraint("Coincident", 15, 2, 16, 1),
    Sketcher.Constraint("Coincident", 16, 2, 17, 1),
    Sketcher.Constraint("Coincident", 17, 2, 12, 1),
    Sketcher.Constraint("Coincident", 18, 2, 19, 1),
    Sketcher.Constraint("Coincident", 19, 2, 20, 1),
    Sketcher.Constraint("Coincident", 20, 2, 21, 1),
    Sketcher.Constraint("Coincident", 21, 2, 22, 1),
    Sketcher.Constraint("Coincident", 22, 2, 23, 1),
    Sketcher.Constraint("Coincident", 23, 2, 18, 1),
    Sketcher.Constraint("Vertical", 2),
    Sketcher.Constraint("Vertical", 5),
    Sketcher.Constraint("Vertical", 8),
    Sketcher.Constraint("Vertical", 11),
    Sketcher.Constraint("Vertical", 12),
    Sketcher.Constraint("Vertical", 15),
    Sketcher.Constraint("Vertical", 20),
    Sketcher.Constraint("Vertical", 23),
    Sketcher.Constraint("Parallel", 0, 3),
    Sketcher.Constraint("Parallel", 1, 4),
    Sketcher.Constraint("Parallel", 3, 6),
    Sketcher.Constraint("Parallel", 4, 7),
    Sketcher.Constraint("Parallel", 6, 9),
    Sketcher.Constraint("Parallel", 7, 10),
    Sketcher.Constraint("Parallel", 9, 13),
    Sketcher.Constraint("Parallel", 10, 14),
    Sketcher.Constraint("Parallel", 13, 16),
    Sketcher.Constraint("Parallel", 14, 17),
    Sketcher.Constraint("Parallel", 16, 18),
    Sketcher.Constraint("Parallel", 17, 19),
    Sketcher.Constraint("Parallel", 18, 21),
    Sketcher.Constraint("Parallel", 19, 22),
    Sketcher.Constraint("Horizontal", 2, 2, 4, 2),
    Sketcher.Constraint("Horizontal", 1, 2, 5, 2),
    Sketcher.Constraint("Horizontal", 0, 2, 6, 2),
    Sketcher.Constraint("Horizontal", 5, 2, 7, 2),
    Sketcher.Constraint("Horizontal", 4, 2, 8, 2),
    Sketcher.Constraint("Horizontal", 3, 2, 9, 2),
    Sketcher.Constraint("Horizontal", 8, 2, 10, 2),
    Sketcher.Constraint("Horizontal", 12, 2, 14, 2),
    Sketcher.Constraint("Horizontal", 15, 2, 17, 2),
    Sketcher.Constraint("Horizontal", 13, 2, 18, 2),
    Sketcher.Constraint("Horizontal", 14, 2, 19, 2),
    Sketcher.Constraint("Horizontal", 17, 2, 20, 2),
    Sketcher.Constraint("Horizontal", 16, 2, 21, 2),
    Sketcher.Constraint("Horizontal", 20, 2, 22, 2),
    Sketcher.Constraint("Vertical", 0, 2, 3, 2),
    Sketcher.Constraint("Vertical", 11, 2, 12, 2),
    Sketcher.Constraint("Vertical", 9, 2, 13, 2),
    Sketcher.Constraint("Vertical", 3, 2, 18, 2),
    Sketcher.Constraint("Equal", 11, 12),
    Sketcher.Constraint("DistanceY", 2, 1, 2, 2, Q("3 mm")),
    Sketcher.Constraint("Angle", 0, Q("-149.999998 deg")),
    Sketcher.Constraint("Distance", 0, Q("3 mm")),
    Sketcher.Constraint("DistanceY", -1, 1, 1, 2, Q("15 mm")),
    Sketcher.Constraint("DistanceY", -1, 1, 12, 2, Q("52 mm")),
    Sketcher.Constraint("DistanceX", 0, 2, 6, 2, Q("37 mm")),
    Sketcher.Constraint("DistanceX", -1, 1, 0, 2, Q("16.5 mm")),
])
pocket7 = body.newObject("PartDesign::Pocket", "Pocket006")
pocket7.Profile = sketch9
pocket7.Length = 3
pocket7.Reversed = True

sketch10 = body.newObject("Sketcher::SketchObject", "Sketch009")
sketch10.AttachmentSupport = (doc.getObject("XY_Plane"), [""])
sketch10.MapMode = "FlatFace"
sketch10.AttachmentOffset = App.Placement(Vector(0, 0, 4), App.Rotation())
sketch10.addGeometry([
    Part.Circle(Vector(16.5, 53.5, 0), Vector(0, 0, 1), 3),
    Part.Circle(Vector(53.5, 53.5, 0), Vector(0, 0, 1), 3),
    Part.Circle(Vector(53.5, 16.5, 0), Vector(0, 0, 1), 3),
    Part.Circle(Vector(16.5, 16.5, 0), Vector(0, 0, 1), 3),
], False)
sketch10.addConstraint([
    Sketcher.Constraint("Equal", 0, 1),
    Sketcher.Constraint("Equal", 1, 2),
    Sketcher.Constraint("Equal", 2, 3),
    Sketcher.Constraint("Horizontal", 0, 3, 1, 3),
    Sketcher.Constraint("Horizontal", 2, 3, 3, 3),
    Sketcher.Constraint("Vertical", 1, 3, 2, 3),
    Sketcher.Constraint("Vertical", 0, 3, 3, 3),
    Sketcher.Constraint("Diameter", 0, Q("6 mm")),
    Sketcher.Constraint("DistanceX", 0, 3, 1, 3, Q("37 mm")),
    Sketcher.Constraint("DistanceY", 2, 3, 1, 3, Q("37 mm")),
    Sketcher.Constraint("DistanceX", -1, 1, 0, 3, Q("16.5 mm")),
    Sketcher.Constraint("DistanceY", -1, 1, 0, 3, Q("53.5 mm")),
])
pad3 = body.newObject("PartDesign::Pad", "Pad002")
pad3.Profile = sketch10
pad3.Length = 2

sketch11 = body.newObject("Sketcher::SketchObject", "Sketch010")
sketch11.AttachmentSupport = (doc.getObject("XY_Plane"), [""])
sketch11.MapMode = "FlatFace"
sketch11.AttachmentOffset = App.Placement(Vector(0, 0, 6), App.Rotation())
sketch11.addGeometry([
    Part.Circle(Vector(16.5, 53.5, 0), Vector(0, 0, 1), 1.7),
    Part.Circle(Vector(53.5, 53.5, 0), Vector(0, 0, 1), 1.7),
    Part.Circle(Vector(53.5, 16.5, 0), Vector(0, 0, 1), 1.7),
    Part.Circle(Vector(16.5, 16.5, 0), Vector(0, 0, 1), 1.7),
], False)
sketch11.addConstraint([
    Sketcher.Constraint("Equal", 0, 1),
    Sketcher.Constraint("Equal", 1, 2),
    Sketcher.Constraint("Equal", 2, 3),
    Sketcher.Constraint("Horizontal", 0, 3, 1, 3),
    Sketcher.Constraint("Horizontal", 2, 3, 3, 3),
    Sketcher.Constraint("Vertical", 1, 3, 2, 3),
    Sketcher.Constraint("Vertical", 0, 3, 3, 3),
    Sketcher.Constraint("Diameter", 0, Q("3.4 mm")),
    Sketcher.Constraint("DistanceX", 0, 3, 1, 3, Q("37 mm")),
    Sketcher.Constraint("DistanceY", 2, 3, 1, 3, Q("37 mm")),
    Sketcher.Constraint("DistanceX", -1, 1, 0, 3, Q("16.5 mm")),
    Sketcher.Constraint("DistanceY", -1, 1, 0, 3, Q("53.5 mm")),
])
pocket8 = body.newObject("PartDesign::Pocket", "Pocket007")
pocket8.Profile = sketch11
pocket8.Length = 2.8

sketch12 = body.newObject("Sketcher::SketchObject", "Sketch011")
sketch12.AttachmentSupport = (doc.getObject("XY_Plane"), [""])
sketch12.MapMode = "FlatFace"
sketch12.AttachmentOffset = App.Placement(Vector(0, 0, 4), App.Rotation())
sketch12.addGeometry(Part.Circle(Vector(35, 35, 0), Vector(0, 0, 1), 5), False)
sketch12.addConstraint([
    Sketcher.Constraint("Diameter", 0, Q("10 mm")),
    Sketcher.Constraint("DistanceX", -1, 1, 0, 3, Q("35 mm")),
    Sketcher.Constraint("DistanceY", -1, 1, 0, 3, Q("35 mm")),
])
pocket9 = body.newObject("PartDesign::Pocket", "Pocket008")
pocket9.Profile = sketch12
pocket9.Length = 4

doc.recompute()
